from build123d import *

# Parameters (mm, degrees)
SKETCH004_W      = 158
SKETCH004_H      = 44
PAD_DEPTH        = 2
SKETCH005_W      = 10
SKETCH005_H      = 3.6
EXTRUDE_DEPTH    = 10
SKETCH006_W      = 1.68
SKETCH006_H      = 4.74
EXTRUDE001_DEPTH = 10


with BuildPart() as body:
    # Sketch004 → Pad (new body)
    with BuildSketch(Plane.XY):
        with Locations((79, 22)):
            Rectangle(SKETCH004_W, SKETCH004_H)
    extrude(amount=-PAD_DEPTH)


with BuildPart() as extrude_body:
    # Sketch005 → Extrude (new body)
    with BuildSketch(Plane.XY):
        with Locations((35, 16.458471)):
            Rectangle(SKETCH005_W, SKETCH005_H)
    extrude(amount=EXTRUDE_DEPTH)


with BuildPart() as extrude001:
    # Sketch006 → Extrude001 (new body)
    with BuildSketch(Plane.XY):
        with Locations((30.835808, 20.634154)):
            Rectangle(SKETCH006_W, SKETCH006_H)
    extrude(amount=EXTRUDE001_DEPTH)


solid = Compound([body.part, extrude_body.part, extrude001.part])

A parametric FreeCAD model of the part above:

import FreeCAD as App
import Part
import Sketcher

V = App.Vector
Q = App.Units.Quantity

doc = App.newDocument("Part")
body = doc.addObject("PartDesign::Body", "Body")

sketch1 = body.newObject("Sketcher::SketchObject", "Sketch")
sketch1.AttachmentSupport = (doc.getObject("XY_Plane"), [""])
sketch1.MapMode = "FlatFace"
sketch1.addGeometry(Part.LineSegment(V(0, 44, 0), V(0, 0, 0)), False)
sketch1.addGeometry(Part.LineSegment(V(0, 0, 0), V(158, 0, 0)), False)
sketch1.addGeometry(Part.LineSegment(V(158, 0, 0), V(158, 44, 0)), False)
sketch1.addGeometry(Part.LineSegment(V(158, 44, 0), V(0, 44, 0)), False)
sketch1.addConstraint(Sketcher.Constraint("Coincident", 0, 2, 1, 1))
sketch1.addConstraint(Sketcher.Constraint("Coincident", 1, 2, 2, 1))
sketch1.addConstraint(Sketcher.Constraint("Coincident", 2, 2, 3, 1))
sketch1.addConstraint(Sketcher.Constraint("Coincident", 3, 2, 0, 1))
sketch1.addConstraint(Sketcher.Constraint("Vertical", 0))
sketch1.addConstraint(Sketcher.Constraint("Horizontal", 1))
sketch1.addConstraint(Sketcher.Constraint("Vertical", 2))
sketch1.addConstraint(Sketcher.Constraint("Horizontal", 3))
sketch1.addConstraint(Sketcher.Constraint("Coincident", 0, 2, -1, 1))
sketch1.addConstraint(Sketcher.Constraint("DistanceX", 1, 1, 1, 2, Q("158 mm")))
sketch1.addConstraint(Sketcher.Constraint("DistanceY", 0, 2, 0, 1, Q("44 mm")))
pad1 = body.newObject("PartDesign::Pad", "Pad")
pad1.Profile = sketch1
pad1.Length = 2
pad1.Reversed = True
body2 = doc.addObject("PartDesign::Body", "Body001")

sketch2 = body2.newObject("Sketcher::SketchObject", "Sketch001")
sketch2.AttachmentSupport = (doc.getObject("XY_Plane001"), [""])
sketch2.MapMode = "FlatFace"
sketch2.addGeometry(Part.LineSegment(V(30, 18.258471, 0), V(30, 14.658471, 0)), False)
sketch2.addGeometry(Part.LineSegment(V(30, 14.658471, 0), V(40, 14.658471, 0)), False)
sketch2.addGeometry(Part.LineSegment(V(40, 14.658471, 0), V(40, 18.258471, 0)), False)
sketch2.addGeometry(Part.LineSegment(V(40, 18.258471, 0), V(30, 18.258471, 0)), False)
sketch2.addConstraint(Sketcher.Constraint("Coincident", 0, 2, 1, 1))
sketch2.addConstraint(Sketcher.Constraint("Coincident", 1, 2, 2, 1))
sketch2.addConstraint(Sketcher.Constraint("Coincident", 2, 2, 3, 1))
sketch2.addConstraint(Sketcher.Constraint("Coincident", 3, 2, 0, 1))
sketch2.addConstraint(Sketcher.Constraint("Vertical", 0))
sketch2.addConstraint(Sketcher.Constraint("Horizontal", 1))
sketch2.addConstraint(Sketcher.Constraint("Vertical", 2))
sketch2.addConstraint(Sketcher.Constraint("Horizontal", 3))
sketch2.addConstraint(Sketcher.Constraint("DistanceX", 1, 1, 1, 2, Q("10 mm")))
sketch2.addConstraint(Sketcher.Constraint("DistanceY", 0, 2, 0, 1, Q("3.6 mm")))
sketch2.addConstraint(Sketcher.Constraint("DistanceX", -1, 1, 0, 2, Q("30 mm")))
sketch2.addConstraint(Sketcher.Constraint("DistanceY", -1, 1, 0, 2, Q("14.658471 mm")))
pad2 = body2.newObject("PartDesign::Pad", "Pad001")
pad2.Profile = sketch2
pad2.Length = 10
body3 = doc.addObject("PartDesign::Body", "Body002")

sketch3 = body3.newObject("Sketcher::SketchObject", "Sketch002")
sketch3.AttachmentSupport = (doc.getObject("XY_Plane002"), [""])
sketch3.MapMode = "FlatFace"
sketch3.addGeometry(Part.LineSegment(V(29.995808, 23.004154, 0), V(29.995808, 18.264154, 0)), False)
sketch3.addGeometry(Part.LineSegment(V(29.995808, 18.264154, 0), V(31.675808, 18.264154, 0)), False)
sketch3.addGeometry(Part.LineSegment(V(31.675808, 18.264154, 0), V(31.675808, 23.004154, 0)), False)
sketch3.addGeometry(Part.LineSegment(V(31.675808, 23.004154, 0), V(29.995808, 23.004154, 0)), False)
sketch3.addConstraint(Sketcher.Constraint("Coincident", 0, 2, 1, 1))
sketch3.addConstraint(Sketcher.Constraint("Coincident", 1, 2, 2, 1))
sketch3.addConstraint(Sketcher.Constraint("Coincident", 2, 2, 3, 1))
sketch3.addConstraint(Sketcher.Constraint("Coincident", 3, 2, 0, 1))
sketch3.addConstraint(Sketcher.Constraint("Vertical", 0))
sketch3.addConstraint(Sketcher.Constraint("Horizontal", 1))
sketch3.addConstraint(Sketcher.Constraint("Vertical", 2))
sketch3.addConstraint(Sketcher.Constraint("Horizontal", 3))
sketch3.addConstraint(Sketcher.Constraint("DistanceX", 1, 1, 1, 2, Q("1.68 mm")))
sketch3.addConstraint(Sketcher.Constraint("DistanceY", 0, 2, 0, 1, Q("4.74 mm")))
sketch3.addConstraint(Sketcher.Constraint("DistanceX", -1, 1, 0, 2, Q("29.995808 mm")))
sketch3.addConstraint(Sketcher.Constraint("DistanceY", -1, 1, 0, 2, Q("18.264154 mm")))
pad3 = body3.newObject("PartDesign::Pad", "Pad002")
pad3.Profile = sketch3
pad3.Length = 10

doc.recompute()
